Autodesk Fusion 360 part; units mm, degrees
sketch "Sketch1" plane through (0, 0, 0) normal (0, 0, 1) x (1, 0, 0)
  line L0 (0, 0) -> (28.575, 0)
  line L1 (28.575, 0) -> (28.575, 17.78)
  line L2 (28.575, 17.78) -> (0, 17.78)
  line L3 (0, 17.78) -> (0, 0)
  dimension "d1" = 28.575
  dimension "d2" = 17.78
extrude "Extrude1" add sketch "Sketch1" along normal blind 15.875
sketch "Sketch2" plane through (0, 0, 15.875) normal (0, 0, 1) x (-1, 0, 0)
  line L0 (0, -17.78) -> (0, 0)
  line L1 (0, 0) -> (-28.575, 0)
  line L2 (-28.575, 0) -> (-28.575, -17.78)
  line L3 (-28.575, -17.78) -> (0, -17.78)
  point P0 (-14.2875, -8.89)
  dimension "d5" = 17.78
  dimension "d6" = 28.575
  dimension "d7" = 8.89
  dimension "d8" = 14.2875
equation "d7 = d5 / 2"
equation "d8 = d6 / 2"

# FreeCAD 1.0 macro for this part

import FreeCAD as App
import Part
import Sketcher

V = App.Vector
Q = App.Units.Quantity

doc = App.newDocument("Part")
params = doc.addObject("Spreadsheet::Sheet", "Params")
for row, (alias, value) in enumerate([
    ("sketch1_height", "0.7 in"),
    ("sketch1_width", "1.125 in"),
    ("pad1_length", "0.625 in"),
], start=1):
    params.set(f"A{row}", alias)
    params.set(f"B{row}", "=" + value)
    params.setAlias(f"B{row}", alias)

body = doc.addObject("PartDesign::Body", "Body")

# Sketch on XY plane
sketch1 = body.newObject("Sketcher::SketchObject", "Sketch")
sketch1.AttachmentSupport = (doc.getObject("XY_Plane"), [""])
sketch1.MapMode = "FlatFace"
sketch1.addGeometry(Part.LineSegment(V(0, 18, 0), V(0, 0, 0)), False)
sketch1.addGeometry(Part.LineSegment(V(0, 0, 0), V(29, 0, 0)), False)
sketch1.addGeometry(Part.LineSegment(V(29, 0, 0), V(29, 18, 0)), False)
sketch1.addGeometry(Part.LineSegment(V(29, 18, 0), V(0, 18, 0)), False)
sketch1.addConstraint(Sketcher.Constraint("Coincident", 0, 2, 1, 1))
sketch1.addConstraint(Sketcher.Constraint("Coincident", 1, 2, 2, 1))
sketch1.addConstraint(Sketcher.Constraint("Coincident", 2, 2, 3, 1))
sketch1.addConstraint(Sketcher.Constraint("Coincident", 3, 2, 0, 1))
sketch1.addConstraint(Sketcher.Constraint("Vertical", 0))
sketch1.addConstraint(Sketcher.Constraint("Horizontal", 1))
sketch1.addConstraint(Sketcher.Constraint("Vertical", 2))
sketch1.addConstraint(Sketcher.Constraint("Horizontal", 3))
sketch1.addConstraint(Sketcher.Constraint("Coincident", 0, 2, -1, 1))
sketch1.addConstraint(Sketcher.Constraint("DistanceY", 0, 2, 0, 1, Q("0.7 in")))
sketch1.addConstraint(Sketcher.Constraint("DistanceX", 1, 1, 1, 2, Q("1.125 in")))
sketch1.setExpression("Constraints[9]", "Params.sketch1_height")
sketch1.setExpression("Constraints[10]", "Params.sketch1_width")
pad1 = body.newObject("PartDesign::Pad", "Pad")
pad1.Profile = sketch1
pad1.setExpression("Length", "Params.pad1_length")

doc.recompute()
